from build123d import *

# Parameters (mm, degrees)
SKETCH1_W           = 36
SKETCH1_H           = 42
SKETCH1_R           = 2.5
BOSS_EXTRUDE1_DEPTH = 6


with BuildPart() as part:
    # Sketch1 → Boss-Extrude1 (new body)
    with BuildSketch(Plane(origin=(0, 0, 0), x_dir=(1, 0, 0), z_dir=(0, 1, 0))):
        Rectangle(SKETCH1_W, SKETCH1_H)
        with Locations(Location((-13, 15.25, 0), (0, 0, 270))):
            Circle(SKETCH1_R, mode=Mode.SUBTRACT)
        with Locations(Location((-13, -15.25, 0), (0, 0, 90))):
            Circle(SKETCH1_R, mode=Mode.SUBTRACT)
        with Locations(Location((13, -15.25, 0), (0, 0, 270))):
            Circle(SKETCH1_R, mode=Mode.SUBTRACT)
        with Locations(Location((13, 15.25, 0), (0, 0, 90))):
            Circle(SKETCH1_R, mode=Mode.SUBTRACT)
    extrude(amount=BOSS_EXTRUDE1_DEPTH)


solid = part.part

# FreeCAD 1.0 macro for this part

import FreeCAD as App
import Part
import Sketcher


def add_polygon(sketch, points):
    """Adds a closed chain of lines whose ends are joined by coincident constraints."""
    first, n = sketch.GeometryCount, len(points)
    for a, b in zip(points, points[1:] + points[:1]):
        sketch.addGeometry(Part.LineSegment(App.Vector(*a, 0), App.Vector(*b, 0)), False)
    for i in range(n):
        sketch.addConstraint(Sketcher.Constraint("Coincident", first + i, 2, first + (i + 1) % n, 1))

doc = App.newDocument("Part")
params = doc.addObject("Spreadsheet::Sheet", "Params")
for row, (alias, value) in enumerate([
    ("sketch1_diameter", "5 mm"),
    ("sketch1_width", "36 mm"),
    ("sketch1_height", "42 mm"),
    ("pad1_length", "6 mm"),
], start=1):
    params.set(f"A{row}", alias)
    params.set(f"B{row}", "=" + value)
    params.setAlias(f"B{row}", alias)

body = doc.addObject("PartDesign::Body", "Body")

# Sketch on XZ plane
sketch1 = body.newObject("Sketcher::SketchObject", "Sketch")
sketch1.AttachmentSupport = (doc.getObject("XZ_Plane"), [""])
sketch1.MapMode = "FlatFace"
add_polygon(sketch1, [(-18, -21), (-18, 21), (18, 21), (18, -21)])  # lines 0-3
sketch1.addGeometry(Part.Circle(App.Vector(-13, 15.2, 0), App.Vector(0, 0, 1), 2.5), False)  # 4
sketch1.addGeometry(Part.Circle(App.Vector(13, 15.2, 0), App.Vector(0, 0, 1), 2.5), False)  # 5
sketch1.addGeometry(Part.Circle(App.Vector(-13, -15.2, 0), App.Vector(0, 0, 1), 2.5), False)  # 6
sketch1.addGeometry(Part.Circle(App.Vector(13, -15.2, 0), App.Vector(0, 0, 1), 2.5), False)  # 7
sketch1.addConstraint(Sketcher.Constraint("Vertical", 0))
sketch1.addConstraint(Sketcher.Constraint("Horizontal", 1))
sketch1.addConstraint(Sketcher.Constraint("Vertical", 2))
sketch1.addConstraint(Sketcher.Constraint("Horizontal", 3))
sketch1.addConstraint(Sketcher.Constraint("Equal", 4, 5))
sketch1.addConstraint(Sketcher.Constraint("Equal", 5, 6))
sketch1.addConstraint(Sketcher.Constraint("Equal", 6, 7))
sketch1.addConstraint(Sketcher.Constraint("Symmetric", 5, 3, 6, 3, -1, 1))
sketch1.addConstraint(Sketcher.Constraint("Symmetric", 4, 3, 7, 3, -1, 1))
sketch1.addConstraint(Sketcher.Constraint("Symmetric", 0, 2, 2, 2, -1, 1))
sketch1.addConstraint(Sketcher.Constraint("Symmetric", 4, 3, 5, 3, -2))
sketch1.addConstraint(Sketcher.Constraint("Diameter", 4, 5.0))
sketch1.addConstraint(Sketcher.Constraint("DistanceX", 1, 1, 1, 2, 36.0))
sketch1.addConstraint(Sketcher.Constraint("DistanceY", 0, 1, 0, 2, 42.0))
sketch1.addConstraint(Sketcher.Constraint("DistanceX", 4, 3, -1, 1, 13.0))
sketch1.addConstraint(Sketcher.Constraint("DistanceY", 6, 3, 4, 3, 30.5))
sketch1.setExpression("Constraints[15]", "Params.sketch1_diameter")
sketch1.setExpression("Constraints[16]", "Params.sketch1_width")
sketch1.setExpression("Constraints[17]", "Params.sketch1_height")
pad1 = body.newObject("PartDesign::Pad", "Pad")
pad1.Profile = sketch1
pad1.setExpression("Length", "Params.pad1_length")
pad1.Reversed = True

doc.recompute()
